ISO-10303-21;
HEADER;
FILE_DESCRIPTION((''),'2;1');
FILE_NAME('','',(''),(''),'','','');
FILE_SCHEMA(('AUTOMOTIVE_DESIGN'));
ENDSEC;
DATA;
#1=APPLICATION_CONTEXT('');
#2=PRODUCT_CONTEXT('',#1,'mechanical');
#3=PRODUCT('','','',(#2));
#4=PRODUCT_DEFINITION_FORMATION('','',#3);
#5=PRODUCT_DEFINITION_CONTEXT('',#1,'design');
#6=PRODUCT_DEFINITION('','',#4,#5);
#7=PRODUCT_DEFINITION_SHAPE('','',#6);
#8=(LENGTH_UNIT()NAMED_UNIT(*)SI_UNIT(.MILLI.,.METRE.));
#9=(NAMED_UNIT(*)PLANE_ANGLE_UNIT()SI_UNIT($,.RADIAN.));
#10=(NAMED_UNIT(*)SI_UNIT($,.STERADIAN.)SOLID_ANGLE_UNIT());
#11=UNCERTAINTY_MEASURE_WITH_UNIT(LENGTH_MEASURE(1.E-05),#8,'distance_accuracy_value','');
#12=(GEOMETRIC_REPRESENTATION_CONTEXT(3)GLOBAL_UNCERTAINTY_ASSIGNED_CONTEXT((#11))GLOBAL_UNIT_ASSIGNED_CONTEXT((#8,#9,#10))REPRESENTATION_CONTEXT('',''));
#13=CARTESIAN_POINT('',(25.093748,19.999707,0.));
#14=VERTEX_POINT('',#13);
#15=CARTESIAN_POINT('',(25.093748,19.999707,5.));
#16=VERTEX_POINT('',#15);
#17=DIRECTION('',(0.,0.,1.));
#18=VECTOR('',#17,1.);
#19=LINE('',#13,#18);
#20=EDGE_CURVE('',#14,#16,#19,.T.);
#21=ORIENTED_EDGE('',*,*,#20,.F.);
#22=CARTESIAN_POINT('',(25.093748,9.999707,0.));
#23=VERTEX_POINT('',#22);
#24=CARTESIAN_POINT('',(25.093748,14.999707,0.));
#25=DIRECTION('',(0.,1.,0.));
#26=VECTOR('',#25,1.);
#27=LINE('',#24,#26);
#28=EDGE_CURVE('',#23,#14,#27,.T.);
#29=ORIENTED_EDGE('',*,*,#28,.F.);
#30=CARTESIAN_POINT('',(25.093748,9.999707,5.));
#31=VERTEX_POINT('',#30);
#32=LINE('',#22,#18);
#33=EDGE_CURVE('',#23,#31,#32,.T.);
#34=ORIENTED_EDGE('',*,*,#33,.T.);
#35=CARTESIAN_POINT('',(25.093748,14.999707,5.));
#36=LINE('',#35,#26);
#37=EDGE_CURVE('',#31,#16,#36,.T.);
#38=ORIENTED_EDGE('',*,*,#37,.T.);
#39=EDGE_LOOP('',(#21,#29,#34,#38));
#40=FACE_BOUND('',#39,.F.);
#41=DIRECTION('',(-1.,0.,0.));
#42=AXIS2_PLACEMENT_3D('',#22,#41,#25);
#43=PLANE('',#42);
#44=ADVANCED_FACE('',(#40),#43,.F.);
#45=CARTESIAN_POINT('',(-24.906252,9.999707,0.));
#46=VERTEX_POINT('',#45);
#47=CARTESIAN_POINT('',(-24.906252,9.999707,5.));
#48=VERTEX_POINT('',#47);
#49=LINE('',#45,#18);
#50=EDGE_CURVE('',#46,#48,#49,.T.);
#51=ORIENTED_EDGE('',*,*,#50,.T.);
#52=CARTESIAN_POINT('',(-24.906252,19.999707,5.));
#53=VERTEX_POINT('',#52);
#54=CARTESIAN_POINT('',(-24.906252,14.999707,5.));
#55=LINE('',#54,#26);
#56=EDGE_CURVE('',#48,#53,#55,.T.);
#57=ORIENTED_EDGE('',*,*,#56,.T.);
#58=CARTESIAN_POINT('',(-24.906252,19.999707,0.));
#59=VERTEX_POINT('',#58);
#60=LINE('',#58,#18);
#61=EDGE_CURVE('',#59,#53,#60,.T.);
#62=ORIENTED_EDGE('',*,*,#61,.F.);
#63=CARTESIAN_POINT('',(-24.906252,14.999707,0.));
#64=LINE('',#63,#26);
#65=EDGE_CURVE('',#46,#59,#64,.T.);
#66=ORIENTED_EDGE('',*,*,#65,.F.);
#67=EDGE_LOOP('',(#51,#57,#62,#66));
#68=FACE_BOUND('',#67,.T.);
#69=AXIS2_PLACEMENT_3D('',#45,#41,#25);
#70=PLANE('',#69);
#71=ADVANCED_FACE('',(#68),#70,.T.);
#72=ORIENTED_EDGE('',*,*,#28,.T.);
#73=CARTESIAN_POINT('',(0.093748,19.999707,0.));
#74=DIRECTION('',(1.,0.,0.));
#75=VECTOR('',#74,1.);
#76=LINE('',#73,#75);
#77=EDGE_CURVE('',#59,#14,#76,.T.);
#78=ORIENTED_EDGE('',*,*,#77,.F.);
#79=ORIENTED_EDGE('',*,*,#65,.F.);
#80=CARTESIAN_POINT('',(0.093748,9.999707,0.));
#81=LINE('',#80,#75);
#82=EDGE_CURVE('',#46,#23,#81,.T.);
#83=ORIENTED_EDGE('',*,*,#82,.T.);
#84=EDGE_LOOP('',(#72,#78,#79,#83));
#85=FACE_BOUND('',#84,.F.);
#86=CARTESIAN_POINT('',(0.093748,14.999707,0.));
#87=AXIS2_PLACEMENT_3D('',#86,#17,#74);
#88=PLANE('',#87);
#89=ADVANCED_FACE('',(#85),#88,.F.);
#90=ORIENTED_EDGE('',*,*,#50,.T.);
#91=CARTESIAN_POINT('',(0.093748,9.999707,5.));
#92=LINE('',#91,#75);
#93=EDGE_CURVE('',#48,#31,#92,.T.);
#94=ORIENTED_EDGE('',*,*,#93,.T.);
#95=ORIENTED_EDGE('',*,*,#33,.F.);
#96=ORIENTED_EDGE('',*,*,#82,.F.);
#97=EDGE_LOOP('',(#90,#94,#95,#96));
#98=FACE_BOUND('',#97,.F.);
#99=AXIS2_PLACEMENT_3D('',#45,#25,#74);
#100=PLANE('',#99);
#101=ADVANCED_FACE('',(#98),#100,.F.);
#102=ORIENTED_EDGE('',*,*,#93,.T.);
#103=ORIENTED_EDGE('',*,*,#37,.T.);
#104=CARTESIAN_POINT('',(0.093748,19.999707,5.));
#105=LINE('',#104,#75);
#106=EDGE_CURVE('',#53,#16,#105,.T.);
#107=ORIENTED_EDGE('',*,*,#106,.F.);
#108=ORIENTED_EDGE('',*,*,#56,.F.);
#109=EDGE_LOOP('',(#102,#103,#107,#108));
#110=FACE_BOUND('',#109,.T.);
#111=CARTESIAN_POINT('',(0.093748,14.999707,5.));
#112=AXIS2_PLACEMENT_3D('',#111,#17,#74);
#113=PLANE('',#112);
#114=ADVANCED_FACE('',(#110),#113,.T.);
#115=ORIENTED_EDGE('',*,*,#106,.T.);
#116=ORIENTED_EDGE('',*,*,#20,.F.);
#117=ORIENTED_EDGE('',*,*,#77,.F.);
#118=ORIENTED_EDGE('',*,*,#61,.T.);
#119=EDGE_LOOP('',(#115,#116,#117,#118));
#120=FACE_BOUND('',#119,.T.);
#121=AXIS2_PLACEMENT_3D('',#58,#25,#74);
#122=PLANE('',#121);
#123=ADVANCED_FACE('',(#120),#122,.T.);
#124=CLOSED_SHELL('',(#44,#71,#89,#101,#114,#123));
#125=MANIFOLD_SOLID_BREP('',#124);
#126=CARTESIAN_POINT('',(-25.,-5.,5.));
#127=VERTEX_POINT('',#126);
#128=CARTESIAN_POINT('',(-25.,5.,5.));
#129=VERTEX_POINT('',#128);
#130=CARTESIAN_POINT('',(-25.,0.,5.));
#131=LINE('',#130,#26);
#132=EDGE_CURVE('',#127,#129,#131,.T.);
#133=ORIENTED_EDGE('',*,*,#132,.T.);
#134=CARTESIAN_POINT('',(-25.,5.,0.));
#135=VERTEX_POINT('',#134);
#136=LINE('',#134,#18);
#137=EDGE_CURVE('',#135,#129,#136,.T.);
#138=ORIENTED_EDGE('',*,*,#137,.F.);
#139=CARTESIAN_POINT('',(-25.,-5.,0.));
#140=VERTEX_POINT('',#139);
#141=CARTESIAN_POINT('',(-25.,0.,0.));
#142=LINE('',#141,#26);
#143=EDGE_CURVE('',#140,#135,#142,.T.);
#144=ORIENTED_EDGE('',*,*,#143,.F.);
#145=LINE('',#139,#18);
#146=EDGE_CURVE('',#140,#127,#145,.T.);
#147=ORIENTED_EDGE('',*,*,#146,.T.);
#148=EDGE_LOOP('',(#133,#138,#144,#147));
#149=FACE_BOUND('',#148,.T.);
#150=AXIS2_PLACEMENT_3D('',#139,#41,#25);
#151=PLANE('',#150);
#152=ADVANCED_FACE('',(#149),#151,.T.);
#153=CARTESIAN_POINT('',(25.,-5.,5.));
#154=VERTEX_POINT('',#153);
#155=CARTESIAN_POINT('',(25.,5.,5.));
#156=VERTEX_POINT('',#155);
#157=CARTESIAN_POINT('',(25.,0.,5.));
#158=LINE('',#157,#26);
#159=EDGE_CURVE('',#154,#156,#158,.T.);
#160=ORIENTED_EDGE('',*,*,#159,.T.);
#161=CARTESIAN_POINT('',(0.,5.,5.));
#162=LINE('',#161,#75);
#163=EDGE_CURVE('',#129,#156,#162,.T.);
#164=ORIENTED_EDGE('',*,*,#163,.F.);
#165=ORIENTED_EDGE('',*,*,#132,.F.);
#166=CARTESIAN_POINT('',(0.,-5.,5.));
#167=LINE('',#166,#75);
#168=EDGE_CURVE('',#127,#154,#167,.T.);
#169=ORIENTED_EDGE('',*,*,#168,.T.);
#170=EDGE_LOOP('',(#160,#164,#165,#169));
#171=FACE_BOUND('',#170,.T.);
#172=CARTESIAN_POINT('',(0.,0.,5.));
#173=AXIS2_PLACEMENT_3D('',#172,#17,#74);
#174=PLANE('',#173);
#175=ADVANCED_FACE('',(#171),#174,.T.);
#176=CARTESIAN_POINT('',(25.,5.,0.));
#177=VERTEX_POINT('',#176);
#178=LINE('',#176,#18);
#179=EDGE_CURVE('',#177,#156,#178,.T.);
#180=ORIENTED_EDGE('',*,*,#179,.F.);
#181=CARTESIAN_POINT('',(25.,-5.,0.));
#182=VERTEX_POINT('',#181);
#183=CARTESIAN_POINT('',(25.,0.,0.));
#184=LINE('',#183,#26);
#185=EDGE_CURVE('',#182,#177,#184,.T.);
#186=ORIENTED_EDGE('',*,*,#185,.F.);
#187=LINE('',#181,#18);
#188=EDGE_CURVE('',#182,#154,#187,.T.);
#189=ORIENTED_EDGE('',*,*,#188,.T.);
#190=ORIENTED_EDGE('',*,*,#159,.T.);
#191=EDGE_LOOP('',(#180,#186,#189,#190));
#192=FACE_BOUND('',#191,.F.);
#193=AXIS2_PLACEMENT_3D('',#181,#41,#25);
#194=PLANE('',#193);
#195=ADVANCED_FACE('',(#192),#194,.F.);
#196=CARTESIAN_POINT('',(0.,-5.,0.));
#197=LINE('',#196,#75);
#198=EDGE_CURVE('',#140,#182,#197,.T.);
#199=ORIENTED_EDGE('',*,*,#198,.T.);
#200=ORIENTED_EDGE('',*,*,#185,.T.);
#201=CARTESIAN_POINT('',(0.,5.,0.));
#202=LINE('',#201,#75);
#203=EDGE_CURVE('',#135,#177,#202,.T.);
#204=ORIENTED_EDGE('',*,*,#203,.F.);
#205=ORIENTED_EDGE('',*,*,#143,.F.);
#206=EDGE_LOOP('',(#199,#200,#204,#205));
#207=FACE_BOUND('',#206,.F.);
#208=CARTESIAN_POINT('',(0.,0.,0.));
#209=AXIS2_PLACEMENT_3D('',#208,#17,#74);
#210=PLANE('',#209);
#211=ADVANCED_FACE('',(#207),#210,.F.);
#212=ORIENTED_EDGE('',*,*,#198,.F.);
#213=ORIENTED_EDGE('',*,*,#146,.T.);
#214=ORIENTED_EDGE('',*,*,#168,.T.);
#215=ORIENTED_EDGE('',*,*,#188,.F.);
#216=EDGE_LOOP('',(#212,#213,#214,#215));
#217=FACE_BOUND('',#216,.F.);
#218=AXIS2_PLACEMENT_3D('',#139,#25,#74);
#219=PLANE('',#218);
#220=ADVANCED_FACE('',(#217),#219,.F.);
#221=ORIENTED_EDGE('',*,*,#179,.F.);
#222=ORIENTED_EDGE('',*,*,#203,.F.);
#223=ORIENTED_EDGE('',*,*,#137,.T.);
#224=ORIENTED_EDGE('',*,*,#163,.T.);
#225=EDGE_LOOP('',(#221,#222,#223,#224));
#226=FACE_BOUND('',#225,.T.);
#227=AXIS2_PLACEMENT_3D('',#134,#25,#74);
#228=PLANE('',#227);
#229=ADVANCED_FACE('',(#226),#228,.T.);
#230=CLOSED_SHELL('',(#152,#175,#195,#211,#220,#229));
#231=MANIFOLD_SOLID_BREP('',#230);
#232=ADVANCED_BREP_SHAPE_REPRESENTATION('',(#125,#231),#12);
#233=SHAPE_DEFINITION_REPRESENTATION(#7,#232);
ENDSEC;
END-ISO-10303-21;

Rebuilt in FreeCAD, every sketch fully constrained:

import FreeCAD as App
import Part
import Sketcher
from FreeCAD import Vector
Q = App.Units.Quantity

doc = App.newDocument("Part")
body = doc.addObject("PartDesign::Body", "Body")
body.AllowCompound = True

# Sketch on XY plane
sketch1 = doc.addObject("Sketcher::SketchObject", "Sketch")
body.addObject(sketch1)
sketch1.AttachmentSupport = (doc.XY_Plane, [""])
sketch1.MapMode = "FlatFace"
sketch1.addGeometry([
    Part.LineSegment(Vector(-25, 5, 0), Vector(-25, -5, 0)),  # 0
    Part.LineSegment(Vector(-25, -5, 0), Vector(25, -5, 0)),  # 1
    Part.LineSegment(Vector(25, -5, 0), Vector(25, 5, 0)),  # 2
    Part.LineSegment(Vector(25, 5, 0), Vector(-25, 5, 0)),  # 3
    Part.LineSegment(Vector(-25, 20, 0), Vector(-25, 10, 0)),  # 4
    Part.LineSegment(Vector(-25, 10, 0), Vector(25, 10, 0)),  # 5
    Part.LineSegment(Vector(25, 10, 0), Vector(25, 20, 0)),  # 6
    Part.LineSegment(Vector(25, 20, 0), Vector(-25, 20, 0)),  # 7
], False)
sketch1.addConstraint([
    Sketcher.Constraint("Coincident", 0, 2, 1, 1),
    Sketcher.Constraint("Coincident", 1, 2, 2, 1),
    Sketcher.Constraint("Coincident", 2, 2, 3, 1),
    Sketcher.Constraint("Coincident", 3, 2, 0, 1),
    Sketcher.Constraint("Coincident", 4, 2, 5, 1),
    Sketcher.Constraint("Coincident", 5, 2, 6, 1),
    Sketcher.Constraint("Coincident", 6, 2, 7, 1),
    Sketcher.Constraint("Coincident", 7, 2, 4, 1),
    Sketcher.Constraint("Vertical", 0),
    Sketcher.Constraint("Horizontal", 1),
    Sketcher.Constraint("Vertical", 2),
    Sketcher.Constraint("Horizontal", 3),
    Sketcher.Constraint("Vertical", 4),
    Sketcher.Constraint("Horizontal", 5),
    Sketcher.Constraint("Vertical", 6),
    Sketcher.Constraint("Horizontal", 7),
    Sketcher.Constraint("Symmetric", 0, 2, 2, 2, -1, 1),
    Sketcher.Constraint("Equal", 3, 5),
    Sketcher.Constraint("Equal", 2, 4),
    Sketcher.Constraint("DistanceX", 1, 1, 1, 2, Q("50 mm")),
    Sketcher.Constraint("DistanceY", 0, 2, 0, 1, Q("10 mm")),
    Sketcher.Constraint("DistanceX", 4, 2, -1, 1, Q("24.906252 mm")),
    Sketcher.Constraint("DistanceY", -1, 1, 4, 2, Q("9.999707 mm")),
])
pad1 = doc.addObject("PartDesign::Pad", "Pad")
body.addObject(pad1)
pad1.Profile = sketch1
pad1.Length = 5

doc.recompute()
